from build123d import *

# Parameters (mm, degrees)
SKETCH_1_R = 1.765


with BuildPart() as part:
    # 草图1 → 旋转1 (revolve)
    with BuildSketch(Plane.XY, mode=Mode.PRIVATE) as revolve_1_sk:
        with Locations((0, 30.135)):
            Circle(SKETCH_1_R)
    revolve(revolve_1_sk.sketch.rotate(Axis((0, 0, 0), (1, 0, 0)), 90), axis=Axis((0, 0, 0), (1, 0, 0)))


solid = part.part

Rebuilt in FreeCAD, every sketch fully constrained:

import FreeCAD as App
import Part
import Sketcher

V = App.Vector
Q = App.Units.Quantity

doc = App.newDocument("Part")
body = doc.addObject("PartDesign::Body", "Body")

sketch1 = body.newObject("Sketcher::SketchObject", "Sketch")
sketch1.AttachmentSupport = (doc.getObject("XY_Plane"), [""])
sketch1.MapMode = "FlatFace"
sketch1.addGeometry(Part.Circle(V(0, 30.1, 0), V(0, 0, 1), 1.8), False)
sketch1.addConstraint([
    Sketcher.Constraint("PointOnObject", 0, 3, -2),
    Sketcher.Constraint("Diameter", 0, Q("3.53 mm")),
    Sketcher.Constraint("DistanceY", -1, 1, 0, 3, Q("30.135 mm")),
])
revolution = body.newObject("PartDesign::Revolution", "Revolution")
revolution.Profile = sketch1
revolution.ReferenceAxis = (sketch1, ["H_Axis"])
revolution.Angle = 360

doc.recompute()
